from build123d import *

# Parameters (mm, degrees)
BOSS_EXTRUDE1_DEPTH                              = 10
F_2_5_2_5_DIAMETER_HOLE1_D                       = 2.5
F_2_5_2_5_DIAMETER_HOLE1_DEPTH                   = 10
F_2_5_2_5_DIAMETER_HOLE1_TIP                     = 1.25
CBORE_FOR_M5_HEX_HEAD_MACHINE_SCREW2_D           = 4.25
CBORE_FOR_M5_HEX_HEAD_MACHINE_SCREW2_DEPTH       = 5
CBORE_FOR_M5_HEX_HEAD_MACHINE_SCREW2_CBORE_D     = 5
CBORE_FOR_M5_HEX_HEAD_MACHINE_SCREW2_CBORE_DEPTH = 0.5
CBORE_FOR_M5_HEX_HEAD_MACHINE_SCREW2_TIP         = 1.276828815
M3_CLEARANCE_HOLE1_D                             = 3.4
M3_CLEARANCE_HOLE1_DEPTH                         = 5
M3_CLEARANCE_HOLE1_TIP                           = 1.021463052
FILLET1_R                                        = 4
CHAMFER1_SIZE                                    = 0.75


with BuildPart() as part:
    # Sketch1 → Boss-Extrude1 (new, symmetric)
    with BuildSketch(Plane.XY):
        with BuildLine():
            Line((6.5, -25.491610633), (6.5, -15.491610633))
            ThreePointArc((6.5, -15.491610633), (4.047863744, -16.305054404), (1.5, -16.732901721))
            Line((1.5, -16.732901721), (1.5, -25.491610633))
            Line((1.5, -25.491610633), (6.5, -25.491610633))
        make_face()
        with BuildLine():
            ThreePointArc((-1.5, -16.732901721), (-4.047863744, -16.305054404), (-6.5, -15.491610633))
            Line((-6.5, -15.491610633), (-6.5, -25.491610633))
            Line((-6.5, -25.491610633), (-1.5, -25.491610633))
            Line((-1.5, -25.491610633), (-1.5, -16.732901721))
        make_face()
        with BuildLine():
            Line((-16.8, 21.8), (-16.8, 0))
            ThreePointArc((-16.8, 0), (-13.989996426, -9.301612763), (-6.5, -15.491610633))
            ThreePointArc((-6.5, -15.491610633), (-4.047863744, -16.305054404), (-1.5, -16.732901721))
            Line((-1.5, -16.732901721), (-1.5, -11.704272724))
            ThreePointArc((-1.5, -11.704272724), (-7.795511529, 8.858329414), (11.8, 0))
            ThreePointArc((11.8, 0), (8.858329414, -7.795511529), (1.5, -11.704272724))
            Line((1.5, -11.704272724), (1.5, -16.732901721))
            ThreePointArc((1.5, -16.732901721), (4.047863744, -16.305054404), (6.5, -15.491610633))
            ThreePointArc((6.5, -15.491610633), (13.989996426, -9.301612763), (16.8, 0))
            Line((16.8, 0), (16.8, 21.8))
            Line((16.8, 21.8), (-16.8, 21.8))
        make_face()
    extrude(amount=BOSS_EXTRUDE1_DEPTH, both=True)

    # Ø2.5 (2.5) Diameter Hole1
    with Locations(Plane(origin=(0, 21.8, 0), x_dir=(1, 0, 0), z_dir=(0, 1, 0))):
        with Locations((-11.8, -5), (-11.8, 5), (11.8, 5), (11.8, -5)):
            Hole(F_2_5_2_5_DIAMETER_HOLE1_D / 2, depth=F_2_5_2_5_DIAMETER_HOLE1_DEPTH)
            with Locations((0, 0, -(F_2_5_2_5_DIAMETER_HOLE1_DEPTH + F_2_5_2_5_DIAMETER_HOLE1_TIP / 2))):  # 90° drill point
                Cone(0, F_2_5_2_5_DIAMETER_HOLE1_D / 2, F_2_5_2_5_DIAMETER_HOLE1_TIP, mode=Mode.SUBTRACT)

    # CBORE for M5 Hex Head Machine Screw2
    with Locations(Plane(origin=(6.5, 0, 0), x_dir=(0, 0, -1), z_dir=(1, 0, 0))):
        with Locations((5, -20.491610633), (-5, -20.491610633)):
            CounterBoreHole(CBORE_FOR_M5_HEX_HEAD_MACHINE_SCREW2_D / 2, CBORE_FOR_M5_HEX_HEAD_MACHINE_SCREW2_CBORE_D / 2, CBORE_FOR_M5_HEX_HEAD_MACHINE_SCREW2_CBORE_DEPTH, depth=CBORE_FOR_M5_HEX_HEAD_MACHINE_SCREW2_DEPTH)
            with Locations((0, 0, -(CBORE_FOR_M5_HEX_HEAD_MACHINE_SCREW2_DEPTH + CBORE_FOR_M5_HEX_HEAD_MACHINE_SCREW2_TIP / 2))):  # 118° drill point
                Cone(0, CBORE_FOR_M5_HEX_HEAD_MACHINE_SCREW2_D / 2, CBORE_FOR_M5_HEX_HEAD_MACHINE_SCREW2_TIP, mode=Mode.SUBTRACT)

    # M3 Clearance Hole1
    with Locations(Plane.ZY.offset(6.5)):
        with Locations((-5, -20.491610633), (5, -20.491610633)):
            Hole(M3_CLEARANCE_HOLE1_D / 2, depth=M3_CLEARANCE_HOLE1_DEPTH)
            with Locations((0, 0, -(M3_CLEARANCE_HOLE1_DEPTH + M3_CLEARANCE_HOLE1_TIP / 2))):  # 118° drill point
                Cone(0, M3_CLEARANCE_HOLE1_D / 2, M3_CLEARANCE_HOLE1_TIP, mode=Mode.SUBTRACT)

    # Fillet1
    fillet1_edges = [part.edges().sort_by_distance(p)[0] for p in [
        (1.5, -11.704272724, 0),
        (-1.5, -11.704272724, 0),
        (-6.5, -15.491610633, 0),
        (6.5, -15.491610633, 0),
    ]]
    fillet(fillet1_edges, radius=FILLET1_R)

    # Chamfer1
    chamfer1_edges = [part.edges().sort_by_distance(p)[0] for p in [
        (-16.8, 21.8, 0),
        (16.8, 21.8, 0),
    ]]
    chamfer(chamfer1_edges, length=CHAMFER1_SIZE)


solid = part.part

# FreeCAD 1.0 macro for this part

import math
import FreeCAD as App
import Part
import Sketcher

V = App.Vector


def edges_at(feature, points):
    """Names of the edges that pass closest to the given points."""
    edges = feature.Shape.Edges
    near = lambda p: min(range(len(edges)), key=lambda i: edges[i].distToShape(Part.Vertex(*p))[0])
    return sorted({f"Edge{near(p) + 1}" for p in points})

doc = App.newDocument("Part")
params = doc.addObject("Spreadsheet::Sheet", "Params")
for row, (alias, value) in enumerate([
    ("sketch1_radius", "16.8 mm"),
    ("sketch1_radius2", "11.8 mm"),
    ("sketch1_width", "5 mm"),
    ("sketch1_height", "10 mm"),
    ("sketch1_height2", "21.8 mm"),
    ("pad1_length", "20 mm"),
    ("sketch2_diameter", "2.5 mm"),
    ("hole_diameter", "2.5 mm"),
    ("hole_depth", "10 mm"),
    ("sketch3_diameter", "4.25 mm"),
    ("hole2_diameter", "4.25 mm"),
    ("hole2_depth", "5 mm"),
    ("hole2_cbore_diameter", "5 mm"),
    ("hole2_cbore_depth", "0.5 mm"),
    ("sketch4_diameter", "3.4 mm"),
    ("hole3_diameter", "3.4 mm"),
    ("hole3_depth", "5 mm"),
    ("fillet_radius", "4 mm"),
    ("chamfer_size", "0.75 mm"),
], start=1):
    params.set(f"A{row}", alias)
    params.set(f"B{row}", "=" + value)
    params.setAlias(f"B{row}", alias)

body = doc.addObject("PartDesign::Body", "Body")

# Sketch on XY plane
sketch1 = body.newObject("Sketcher::SketchObject", "Sketch")
sketch1.AttachmentSupport = (doc.getObject("XY_Plane"), [""])
sketch1.MapMode = "FlatFace"
sketch1.addGeometry(Part.LineSegment(V(6.5, -25.491611, 0), V(6.5, -15.491611, 0)), False)
sketch1.addGeometry(Part.ArcOfCircle(Part.Circle(V(0, 0, 0), V(0, 0, 1), 16.8), math.radians(-67.237959), math.radians(0)), False)
sketch1.addGeometry(Part.LineSegment(V(16.8, 0, 0), V(16.8, 21.8, 0)), False)
sketch1.addGeometry(Part.LineSegment(V(16.8, 21.8, 0), V(-16.8, 21.8, 0)), False)
sketch1.addGeometry(Part.LineSegment(V(-16.8, 21.8, 0), V(-16.8, 0, 0)), False)
sketch1.addGeometry(Part.ArcOfCircle(Part.Circle(V(0, 0, 0), V(0, 0, 1), 16.8), math.radians(-180), math.radians(-112.762041)), False)
sketch1.addGeometry(Part.LineSegment(V(-6.5, -15.491611, 0), V(-6.5, -25.491611, 0)), False)
sketch1.addGeometry(Part.LineSegment(V(-6.5, -25.491611, 0), V(-1.5, -25.491611, 0)), False)
sketch1.addGeometry(Part.LineSegment(V(-1.5, -25.491611, 0), V(-1.5, -11.704273, 0)), False)
sketch1.addGeometry(Part.ArcOfCircle(Part.Circle(V(0, 0, 0), V(0, 0, 1), 11.8), math.radians(0), math.radians(262.696879)), False)
sketch1.addGeometry(Part.ArcOfCircle(Part.Circle(V(0, 0, 0), V(0, 0, 1), 11.8), math.radians(-82.696879), math.radians(0)), False)
sketch1.addGeometry(Part.LineSegment(V(1.5, -11.704273, 0), V(1.5, -25.491611, 0)), False)
sketch1.addGeometry(Part.LineSegment(V(1.5, -25.491611, 0), V(6.5, -25.491611, 0)), False)
sketch1.addConstraint(Sketcher.Constraint("Coincident", 0, 2, 1, 1))
sketch1.addConstraint(Sketcher.Constraint("Tangent", 1, 2, 2, 1))
sketch1.addConstraint(Sketcher.Constraint("Coincident", 2, 2, 3, 1))
sketch1.addConstraint(Sketcher.Constraint("Coincident", 3, 2, 4, 1))
sketch1.addConstraint(Sketcher.Constraint("Tangent", 4, 2, 5, 1))
sketch1.addConstraint(Sketcher.Constraint("Coincident", 5, 2, 6, 1))
sketch1.addConstraint(Sketcher.Constraint("Coincident", 6, 2, 7, 1))
sketch1.addConstraint(Sketcher.Constraint("Coincident", 7, 2, 8, 1))
sketch1.addConstraint(Sketcher.Constraint("Coincident", 8, 2, 9, 2))
sketch1.addConstraint(Sketcher.Constraint("Tangent", 9, 1, 10, 2))
sketch1.addConstraint(Sketcher.Constraint("Coincident", 10, 1, 11, 1))
sketch1.addConstraint(Sketcher.Constraint("Coincident", 11, 2, 12, 1))
sketch1.addConstraint(Sketcher.Constraint("Coincident", 12, 2, 0, 1))
sketch1.addConstraint(Sketcher.Constraint("Vertical", 0))
sketch1.addConstraint(Sketcher.Constraint("Vertical", 2))
sketch1.addConstraint(Sketcher.Constraint("Horizontal", 3))
sketch1.addConstraint(Sketcher.Constraint("Vertical", 4))
sketch1.addConstraint(Sketcher.Constraint("Vertical", 6))
sketch1.addConstraint(Sketcher.Constraint("Horizontal", 7))
sketch1.addConstraint(Sketcher.Constraint("Vertical", 8))
sketch1.addConstraint(Sketcher.Constraint("Vertical", 11))
sketch1.addConstraint(Sketcher.Constraint("Horizontal", 12))
sketch1.addConstraint(Sketcher.Constraint("Coincident", 1, 3, -1, 1))
sketch1.addConstraint(Sketcher.Constraint("Coincident", 5, 3, -1, 1))
sketch1.addConstraint(Sketcher.Constraint("Coincident", 9, 3, -1, 1))
sketch1.addConstraint(Sketcher.Constraint("Equal", 1, 5))
sketch1.addConstraint(Sketcher.Constraint("Equal", 9, 10))
sketch1.addConstraint(Sketcher.Constraint("Symmetric", 7, 2, 11, 2, -2))
sketch1.addConstraint(Sketcher.Constraint("PointOnObject", 9, 1, -1))
sketch1.addConstraint(Sketcher.Constraint("Horizontal", 0, 2, 5, 2))
sketch1.addConstraint(Sketcher.Constraint("Radius", 1, 16.8))
sketch1.addConstraint(Sketcher.Constraint("Radius", 9, 11.8))
sketch1.addConstraint(Sketcher.Constraint("DistanceX", 7, 1, 7, 2, 5.0))
sketch1.addConstraint(Sketcher.Constraint("DistanceY", 0, 1, 0, 2, 10.0))
sketch1.addConstraint(Sketcher.Constraint("DistanceY", 2, 1, 2, 2, 21.8))
sketch1.addConstraint(Sketcher.Constraint("DistanceX", 5, 2, 0, 2, 13.0))
sketch1.setExpression("Constraints[30]", "Params.sketch1_radius")
sketch1.setExpression("Constraints[31]", "Params.sketch1_radius2")
sketch1.setExpression("Constraints[32]", "Params.sketch1_width")
sketch1.setExpression("Constraints[33]", "Params.sketch1_height")
sketch1.setExpression("Constraints[34]", "Params.sketch1_height2")
pad1 = body.newObject("PartDesign::Pad", "Pad")
pad1.Profile = sketch1
pad1.setExpression("Length", "Params.pad1_length")
pad1.Midplane = True

# Sketch on XZ plane
sketch2 = body.newObject("Sketcher::SketchObject", "Sketch001")
sketch2.AttachmentSupport = (doc.getObject("XZ_Plane"), [""])
sketch2.MapMode = "FlatFace"
sketch2.AttachmentOffset = App.Placement(V(0, 0, -21.8), App.Rotation())
sketch2.addGeometry(Part.Circle(V(-11.8, 5, 0), V(0, 0, 1), 1.25), False)
sketch2.addGeometry(Part.Circle(V(-11.8, -5, 0), V(0, 0, 1), 1.25), False)
sketch2.addGeometry(Part.Circle(V(11.8, -5, 0), V(0, 0, 1), 1.25), False)
sketch2.addGeometry(Part.Circle(V(11.8, 5, 0), V(0, 0, 1), 1.25), False)
sketch2.addConstraint(Sketcher.Constraint("Equal", 0, 1))
sketch2.addConstraint(Sketcher.Constraint("Equal", 1, 2))
sketch2.addConstraint(Sketcher.Constraint("Equal", 2, 3))
sketch2.addConstraint(Sketcher.Constraint("Symmetric", 0, 3, 2, 3, -1, 1))
sketch2.addConstraint(Sketcher.Constraint("Symmetric", 1, 3, 3, 3, -1, 1))
sketch2.addConstraint(Sketcher.Constraint("Symmetric", 1, 3, 2, 3, -2))
sketch2.addConstraint(Sketcher.Constraint("Diameter", 0, 2.5))
sketch2.addConstraint(Sketcher.Constraint("DistanceY", -1, 1, 0, 3, 5.0))
sketch2.addConstraint(Sketcher.Constraint("DistanceX", 0, 3, -1, 1, 11.8))
sketch2.setExpression("Constraints[6]", "Params.sketch2_diameter")
doc.recompute()
hole = body.newObject("PartDesign::Hole", "Hole")
hole.Profile = sketch2
hole.ThreadType = "None"
hole.setExpression("Diameter", "Params.hole_diameter")
hole.DepthType = "Dimension"
hole.setExpression("Depth", "Params.hole_depth")
hole.DrillPoint = "Angled"
hole.DrillPointAngle = 90
hole.Reversed = True

# Sketch on YZ plane
sketch3 = body.newObject("Sketcher::SketchObject", "Sketch002")
sketch3.AttachmentSupport = (doc.getObject("YZ_Plane"), [""])
sketch3.MapMode = "FlatFace"
sketch3.AttachmentOffset = App.Placement(V(0, 0, 6.5), App.Rotation())
sketch3.addGeometry(Part.Circle(V(-20.491611, -5, 0), V(0, 0, 1), 2.125), False)
sketch3.addGeometry(Part.Circle(V(-20.491611, 5, 0), V(0, 0, 1), 2.125), False)
sketch3.addConstraint(Sketcher.Constraint("Equal", 0, 1))
sketch3.addConstraint(Sketcher.Constraint("Symmetric", 0, 3, 1, 3, -1))
sketch3.addConstraint(Sketcher.Constraint("Diameter", 0, 4.25))
sketch3.addConstraint(Sketcher.Constraint("DistanceY", 0, 3, -1, 1, 5.0))
sketch3.addConstraint(Sketcher.Constraint("DistanceX", 0, 3, -1, 1, 20.491611))
sketch3.setExpression("Constraints[2]", "Params.sketch3_diameter")
doc.recompute()
hole2 = body.newObject("PartDesign::Hole", "Hole001")
hole2.Profile = sketch3
hole2.ThreadType = "None"
hole2.setExpression("Diameter", "Params.hole2_diameter")
hole2.DepthType = "Dimension"
hole2.setExpression("Depth", "Params.hole2_depth")
hole2.DrillPoint = "Angled"
hole2.DrillPointAngle = 118
hole2.HoleCutType = "Counterbore"
hole2.setExpression("HoleCutDiameter", "Params.hole2_cbore_diameter")
hole2.setExpression("HoleCutDepth", "Params.hole2_cbore_depth")

# Sketch on YZ plane
sketch4 = body.newObject("Sketcher::SketchObject", "Sketch003")
sketch4.AttachmentSupport = (doc.getObject("YZ_Plane"), [""])
sketch4.MapMode = "FlatFace"
sketch4.AttachmentOffset = App.Placement(V(0, 0, -6.5), App.Rotation())
sketch4.addGeometry(Part.Circle(V(-20.491611, -5, 0), V(0, 0, 1), 1.7), False)
sketch4.addGeometry(Part.Circle(V(-20.491611, 5, 0), V(0, 0, 1), 1.7), False)
sketch4.addConstraint(Sketcher.Constraint("Equal", 0, 1))
sketch4.addConstraint(Sketcher.Constraint("Symmetric", 0, 3, 1, 3, -1))
sketch4.addConstraint(Sketcher.Constraint("Diameter", 0, 3.4))
sketch4.addConstraint(Sketcher.Constraint("DistanceY", 0, 3, -1, 1, 5.0))
sketch4.addConstraint(Sketcher.Constraint("DistanceX", 0, 3, -1, 1, 20.491611))
sketch4.setExpression("Constraints[2]", "Params.sketch4_diameter")
doc.recompute()
hole3 = body.newObject("PartDesign::Hole", "Hole002")
hole3.Profile = sketch4
hole3.ThreadType = "None"
hole3.setExpression("Diameter", "Params.hole3_diameter")
hole3.DepthType = "Dimension"
hole3.setExpression("Depth", "Params.hole3_depth")
hole3.DrillPoint = "Angled"
hole3.DrillPointAngle = 118
hole3.Reversed = True
doc.recompute()

fillet = body.newObject("PartDesign::Fillet", "Fillet")
fillet.Base = (hole3, edges_at(hole3, [
    (1.5, -11.704, 0),
    (-1.5, -11.704, 0),
    (-6.5, -15.492, 0),
    (6.5, -15.492, 0),
]))
fillet.setExpression("Radius", "Params.fillet_radius")
doc.recompute()

chamfer = body.newObject("PartDesign::Chamfer", "Chamfer")
chamfer.Base = (fillet, edges_at(fillet, [(-16.8, 21.8, 0), (16.8, 21.8, 0)]))
chamfer.setExpression("Size", "Params.chamfer_size")

doc.recompute()
